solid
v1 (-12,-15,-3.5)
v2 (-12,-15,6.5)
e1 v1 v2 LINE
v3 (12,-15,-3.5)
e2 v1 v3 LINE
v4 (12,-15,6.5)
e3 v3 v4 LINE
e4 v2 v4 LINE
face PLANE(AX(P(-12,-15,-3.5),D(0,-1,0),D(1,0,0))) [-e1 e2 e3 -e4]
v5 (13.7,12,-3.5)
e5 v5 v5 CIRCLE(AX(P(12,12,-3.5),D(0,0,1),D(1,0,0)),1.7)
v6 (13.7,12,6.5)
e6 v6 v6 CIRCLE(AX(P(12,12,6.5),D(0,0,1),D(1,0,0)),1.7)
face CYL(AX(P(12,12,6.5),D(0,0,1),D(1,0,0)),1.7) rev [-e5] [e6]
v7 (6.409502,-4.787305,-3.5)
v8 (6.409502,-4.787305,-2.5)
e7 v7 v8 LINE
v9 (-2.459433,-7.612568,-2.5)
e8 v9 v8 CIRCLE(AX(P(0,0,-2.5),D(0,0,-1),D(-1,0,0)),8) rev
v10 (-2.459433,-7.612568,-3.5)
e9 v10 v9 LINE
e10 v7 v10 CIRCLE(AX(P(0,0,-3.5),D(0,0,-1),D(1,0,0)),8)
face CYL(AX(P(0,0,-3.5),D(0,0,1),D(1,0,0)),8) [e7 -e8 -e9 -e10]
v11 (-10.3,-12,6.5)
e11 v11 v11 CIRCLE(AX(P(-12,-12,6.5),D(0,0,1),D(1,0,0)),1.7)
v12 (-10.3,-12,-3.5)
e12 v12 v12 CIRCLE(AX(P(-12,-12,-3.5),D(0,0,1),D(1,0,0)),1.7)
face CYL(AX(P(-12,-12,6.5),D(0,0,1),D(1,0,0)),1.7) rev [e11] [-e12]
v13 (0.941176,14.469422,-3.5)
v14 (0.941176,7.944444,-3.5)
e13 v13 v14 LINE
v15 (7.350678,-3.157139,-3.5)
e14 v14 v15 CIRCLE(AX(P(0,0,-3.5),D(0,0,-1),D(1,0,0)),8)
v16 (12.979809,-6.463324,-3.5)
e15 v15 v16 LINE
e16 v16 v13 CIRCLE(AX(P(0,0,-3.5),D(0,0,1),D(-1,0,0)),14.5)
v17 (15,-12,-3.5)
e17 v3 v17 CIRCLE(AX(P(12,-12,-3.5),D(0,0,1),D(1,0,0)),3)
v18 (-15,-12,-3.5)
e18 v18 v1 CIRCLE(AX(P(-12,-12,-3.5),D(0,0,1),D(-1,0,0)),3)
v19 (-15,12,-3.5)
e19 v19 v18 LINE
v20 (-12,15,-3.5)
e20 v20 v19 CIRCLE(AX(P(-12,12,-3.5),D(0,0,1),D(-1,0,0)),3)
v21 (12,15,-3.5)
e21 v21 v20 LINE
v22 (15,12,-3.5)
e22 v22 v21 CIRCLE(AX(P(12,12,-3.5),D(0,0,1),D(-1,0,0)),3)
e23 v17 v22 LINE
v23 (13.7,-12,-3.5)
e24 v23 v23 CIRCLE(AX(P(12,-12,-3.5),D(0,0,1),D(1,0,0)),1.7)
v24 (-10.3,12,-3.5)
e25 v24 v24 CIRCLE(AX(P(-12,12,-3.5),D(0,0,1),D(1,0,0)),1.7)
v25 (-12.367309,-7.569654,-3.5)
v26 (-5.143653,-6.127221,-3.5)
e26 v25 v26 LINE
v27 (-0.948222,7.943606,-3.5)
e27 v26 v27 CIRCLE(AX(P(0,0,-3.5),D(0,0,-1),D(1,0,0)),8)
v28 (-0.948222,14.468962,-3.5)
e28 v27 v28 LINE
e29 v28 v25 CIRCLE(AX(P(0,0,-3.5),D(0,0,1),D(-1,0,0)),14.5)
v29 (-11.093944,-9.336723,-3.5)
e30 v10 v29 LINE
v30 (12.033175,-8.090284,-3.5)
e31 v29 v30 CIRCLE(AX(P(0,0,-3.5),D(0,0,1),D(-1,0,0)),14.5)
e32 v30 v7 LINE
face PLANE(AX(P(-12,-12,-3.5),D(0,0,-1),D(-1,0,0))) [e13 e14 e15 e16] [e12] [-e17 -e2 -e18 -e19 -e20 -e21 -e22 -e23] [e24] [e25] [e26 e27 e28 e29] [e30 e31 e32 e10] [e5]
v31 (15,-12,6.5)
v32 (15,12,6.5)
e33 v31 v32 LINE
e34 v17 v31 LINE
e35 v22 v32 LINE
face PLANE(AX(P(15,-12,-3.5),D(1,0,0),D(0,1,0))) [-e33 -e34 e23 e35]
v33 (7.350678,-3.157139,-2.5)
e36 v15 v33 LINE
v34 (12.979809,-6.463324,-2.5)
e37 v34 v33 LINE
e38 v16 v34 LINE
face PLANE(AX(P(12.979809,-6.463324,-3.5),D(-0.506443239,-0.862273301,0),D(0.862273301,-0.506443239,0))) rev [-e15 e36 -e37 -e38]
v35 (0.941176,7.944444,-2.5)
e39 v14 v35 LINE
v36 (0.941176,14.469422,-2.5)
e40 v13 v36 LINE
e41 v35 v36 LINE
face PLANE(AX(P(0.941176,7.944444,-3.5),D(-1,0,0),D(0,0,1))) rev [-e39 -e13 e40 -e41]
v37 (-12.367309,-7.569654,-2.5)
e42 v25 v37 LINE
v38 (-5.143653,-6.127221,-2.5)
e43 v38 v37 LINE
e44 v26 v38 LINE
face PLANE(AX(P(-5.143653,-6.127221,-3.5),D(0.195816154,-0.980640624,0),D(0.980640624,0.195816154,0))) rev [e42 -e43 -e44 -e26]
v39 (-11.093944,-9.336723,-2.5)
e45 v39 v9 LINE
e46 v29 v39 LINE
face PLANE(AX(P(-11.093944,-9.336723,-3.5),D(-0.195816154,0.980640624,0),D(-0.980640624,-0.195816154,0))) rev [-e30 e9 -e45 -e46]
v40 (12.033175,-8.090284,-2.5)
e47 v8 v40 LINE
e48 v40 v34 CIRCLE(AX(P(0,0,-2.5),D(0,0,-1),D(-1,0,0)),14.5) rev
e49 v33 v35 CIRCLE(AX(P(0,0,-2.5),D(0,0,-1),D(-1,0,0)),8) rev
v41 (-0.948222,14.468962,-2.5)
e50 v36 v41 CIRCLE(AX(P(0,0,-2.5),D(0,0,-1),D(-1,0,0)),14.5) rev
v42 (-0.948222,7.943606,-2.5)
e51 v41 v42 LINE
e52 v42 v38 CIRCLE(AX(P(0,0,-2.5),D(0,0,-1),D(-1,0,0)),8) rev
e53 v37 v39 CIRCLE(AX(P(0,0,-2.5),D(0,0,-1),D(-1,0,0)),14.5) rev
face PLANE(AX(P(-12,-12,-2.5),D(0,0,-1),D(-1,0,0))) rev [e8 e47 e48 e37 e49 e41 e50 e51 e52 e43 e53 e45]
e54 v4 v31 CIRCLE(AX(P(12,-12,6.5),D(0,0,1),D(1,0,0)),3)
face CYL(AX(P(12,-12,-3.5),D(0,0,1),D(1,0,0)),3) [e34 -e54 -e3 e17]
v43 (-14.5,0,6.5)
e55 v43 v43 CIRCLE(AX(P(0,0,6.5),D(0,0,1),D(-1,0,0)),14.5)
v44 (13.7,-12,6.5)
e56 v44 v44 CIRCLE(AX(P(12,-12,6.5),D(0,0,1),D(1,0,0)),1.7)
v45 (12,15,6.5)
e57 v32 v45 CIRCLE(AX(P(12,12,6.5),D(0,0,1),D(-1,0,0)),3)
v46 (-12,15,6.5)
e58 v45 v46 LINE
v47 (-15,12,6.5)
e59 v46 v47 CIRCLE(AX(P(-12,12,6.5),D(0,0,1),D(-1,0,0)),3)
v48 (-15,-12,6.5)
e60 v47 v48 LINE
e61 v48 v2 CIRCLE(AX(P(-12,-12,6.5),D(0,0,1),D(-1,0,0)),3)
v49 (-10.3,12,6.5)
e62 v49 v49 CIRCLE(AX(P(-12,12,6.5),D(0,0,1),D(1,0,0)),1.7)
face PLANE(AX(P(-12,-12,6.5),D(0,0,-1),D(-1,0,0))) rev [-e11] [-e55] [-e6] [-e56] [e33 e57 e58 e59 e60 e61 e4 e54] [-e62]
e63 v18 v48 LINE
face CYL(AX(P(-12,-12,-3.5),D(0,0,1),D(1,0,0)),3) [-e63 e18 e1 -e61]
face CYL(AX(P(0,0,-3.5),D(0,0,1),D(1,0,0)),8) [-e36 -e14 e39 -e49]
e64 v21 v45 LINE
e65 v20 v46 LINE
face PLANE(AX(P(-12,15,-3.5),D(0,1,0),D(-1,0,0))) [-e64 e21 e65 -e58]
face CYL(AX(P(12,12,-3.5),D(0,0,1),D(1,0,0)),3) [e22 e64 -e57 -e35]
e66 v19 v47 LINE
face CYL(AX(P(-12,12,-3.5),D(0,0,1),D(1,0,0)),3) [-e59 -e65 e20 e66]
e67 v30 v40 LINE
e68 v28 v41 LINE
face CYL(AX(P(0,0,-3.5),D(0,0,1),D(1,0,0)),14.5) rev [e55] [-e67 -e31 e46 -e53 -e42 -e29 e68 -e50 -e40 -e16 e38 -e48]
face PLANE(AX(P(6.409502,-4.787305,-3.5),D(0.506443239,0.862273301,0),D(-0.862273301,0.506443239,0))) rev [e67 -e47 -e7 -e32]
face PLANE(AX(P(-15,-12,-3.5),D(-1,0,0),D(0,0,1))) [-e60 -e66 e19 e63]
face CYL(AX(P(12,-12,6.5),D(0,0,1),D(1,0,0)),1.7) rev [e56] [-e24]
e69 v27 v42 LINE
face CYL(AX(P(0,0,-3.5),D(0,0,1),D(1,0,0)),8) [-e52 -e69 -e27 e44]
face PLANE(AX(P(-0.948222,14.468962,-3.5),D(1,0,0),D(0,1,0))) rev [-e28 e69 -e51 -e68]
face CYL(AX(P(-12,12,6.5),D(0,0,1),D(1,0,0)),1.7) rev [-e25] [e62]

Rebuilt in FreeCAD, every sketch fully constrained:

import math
import FreeCAD as App
import Part
import Sketcher

doc = App.newDocument("Part")
params = doc.addObject("Spreadsheet::Sheet", "Params")
for row, (alias, value) in enumerate([
    ("sketch1_radius", "3 mm"),
    ("sketch1_radius2", "8 mm"),
    ("sketch1_radius3", "14.5 mm"),
    ("sketch1_width", "24 mm"),
    ("pad1_length", "10 mm"),
    ("sketch2_radius", "8 mm"),
    ("sketch2_radius2", "14.5 mm"),
    ("pocket1_length", "9 mm"),
    ("sketch3_diameter", "3.4 mm"),
    ("hole_diameter", "3.4 mm"),
], start=1):
    params.set(f"A{row}", alias)
    params.set(f"B{row}", "=" + value)
    params.setAlias(f"B{row}", alias)

body = doc.addObject("PartDesign::Body", "Body")

# Sketch on XY plane
sketch1 = body.newObject("Sketcher::SketchObject", "Sketch")
sketch1.AttachmentSupport = (doc.getObject("XY_Plane"), [""])
sketch1.MapMode = "FlatFace"
sketch1.AttachmentOffset = App.Placement(App.Vector(0, 0, 6.5), App.Rotation())
sketch1.addGeometry(Part.LineSegment(App.Vector(-12, -15, 0), App.Vector(12, -15, 0)), False)
sketch1.addGeometry(Part.ArcOfCircle(Part.Circle(App.Vector(12, -12, 0), App.Vector(0, 0, 1), 3), math.radians(-90), math.radians(0)), False)
sketch1.addGeometry(Part.LineSegment(App.Vector(15, -12, 0), App.Vector(15, 12, 0)), False)
sketch1.addGeometry(Part.ArcOfCircle(Part.Circle(App.Vector(12, 12, 0), App.Vector(0, 0, 1), 3), math.radians(0), math.radians(90)), False)
sketch1.addGeometry(Part.LineSegment(App.Vector(12, 15, 0), App.Vector(-12, 15, 0)), False)
sketch1.addGeometry(Part.ArcOfCircle(Part.Circle(App.Vector(-12, 12, 0), App.Vector(0, 0, 1), 3), math.radians(90), math.radians(180)), False)
sketch1.addGeometry(Part.LineSegment(App.Vector(-15, 12, 0), App.Vector(-15, -12, 0)), False)
sketch1.addGeometry(Part.ArcOfCircle(Part.Circle(App.Vector(-12, -12, 0), App.Vector(0, 0, 1), 3), math.radians(180), math.radians(270)), False)
sketch1.addGeometry(Part.ArcOfCircle(Part.Circle(App.Vector(0, 0, 0), App.Vector(0, 0, 1), 8), math.radians(-108), math.radians(-37)), False)
sketch1.addGeometry(Part.LineSegment(App.Vector(6.4, -4.8, 0), App.Vector(12, -8.1, 0)), False)
sketch1.addGeometry(Part.ArcOfCircle(Part.Circle(App.Vector(0, 0, 0), App.Vector(0, 0, 1), 14.5), math.radians(-140), math.radians(-34)), False)
sketch1.addGeometry(Part.LineSegment(App.Vector(-11.1, -9.3, 0), App.Vector(-2.5, -7.6, 0)), False)
sketch1.addGeometry(Part.ArcOfCircle(Part.Circle(App.Vector(0, 0, 0), App.Vector(0, 0, 1), 8), math.radians(97), math.radians(230)), False)
sketch1.addGeometry(Part.LineSegment(App.Vector(-5.1, -6.1, 0), App.Vector(-12.4, -7.6, 0)), False)
sketch1.addGeometry(Part.ArcOfCircle(Part.Circle(App.Vector(0, 0, 0), App.Vector(0, 0, 1), 14.5), math.radians(94), math.radians(211)), False)
sketch1.addGeometry(Part.LineSegment(App.Vector(-0.9, 14.5, 0), App.Vector(-0.9, 7.9, 0)), False)
sketch1.addGeometry(Part.ArcOfCircle(Part.Circle(App.Vector(0, 0, 0), App.Vector(0, 0, 1), 14.5), math.radians(-26), math.radians(86)), False)
sketch1.addGeometry(Part.LineSegment(App.Vector(13, -6.5, 0), App.Vector(7.4, -3.2, 0)), False)
sketch1.addGeometry(Part.ArcOfCircle(Part.Circle(App.Vector(0, 0, 0), App.Vector(0, 0, 1), 8), math.radians(-23), math.radians(83)), False)
sketch1.addGeometry(Part.LineSegment(App.Vector(0.9, 7.9, 0), App.Vector(0.9, 14.5, 0)), False)
sketch1.addConstraint(Sketcher.Constraint("Tangent", 0, 2, 1, 1))
sketch1.addConstraint(Sketcher.Constraint("Tangent", 1, 2, 2, 1))
sketch1.addConstraint(Sketcher.Constraint("Tangent", 2, 2, 3, 1))
sketch1.addConstraint(Sketcher.Constraint("Tangent", 3, 2, 4, 1))
sketch1.addConstraint(Sketcher.Constraint("Tangent", 4, 2, 5, 1))
sketch1.addConstraint(Sketcher.Constraint("Tangent", 5, 2, 6, 1))
sketch1.addConstraint(Sketcher.Constraint("Tangent", 6, 2, 7, 1))
sketch1.addConstraint(Sketcher.Constraint("Tangent", 7, 2, 0, 1))
sketch1.addConstraint(Sketcher.Constraint("Coincident", 8, 2, 9, 1))
sketch1.addConstraint(Sketcher.Constraint("Coincident", 9, 2, 10, 2))
sketch1.addConstraint(Sketcher.Constraint("Coincident", 10, 1, 11, 1))
sketch1.addConstraint(Sketcher.Constraint("Coincident", 11, 2, 8, 1))
sketch1.addConstraint(Sketcher.Constraint("Coincident", 12, 2, 13, 1))
sketch1.addConstraint(Sketcher.Constraint("Coincident", 13, 2, 14, 2))
sketch1.addConstraint(Sketcher.Constraint("Coincident", 14, 1, 15, 1))
sketch1.addConstraint(Sketcher.Constraint("Coincident", 15, 2, 12, 1))
sketch1.addConstraint(Sketcher.Constraint("Coincident", 16, 1, 17, 1))
sketch1.addConstraint(Sketcher.Constraint("Coincident", 17, 2, 18, 1))
sketch1.addConstraint(Sketcher.Constraint("Coincident", 18, 2, 19, 1))
sketch1.addConstraint(Sketcher.Constraint("Coincident", 19, 2, 16, 2))
sketch1.addConstraint(Sketcher.Constraint("Horizontal", 0))
sketch1.addConstraint(Sketcher.Constraint("Vertical", 2))
sketch1.addConstraint(Sketcher.Constraint("Horizontal", 4))
sketch1.addConstraint(Sketcher.Constraint("Vertical", 6))
sketch1.addConstraint(Sketcher.Constraint("Vertical", 15))
sketch1.addConstraint(Sketcher.Constraint("Vertical", 19))
sketch1.addConstraint(Sketcher.Constraint("Coincident", 8, 3, -1, 1))
sketch1.addConstraint(Sketcher.Constraint("Coincident", 10, 3, -1, 1))
sketch1.addConstraint(Sketcher.Constraint("Coincident", 12, 3, -1, 1))
sketch1.addConstraint(Sketcher.Constraint("Coincident", 14, 3, -1, 1))
sketch1.addConstraint(Sketcher.Constraint("Coincident", 16, 3, -1, 1))
sketch1.addConstraint(Sketcher.Constraint("Coincident", 18, 3, -1, 1))
sketch1.addConstraint(Sketcher.Constraint("Equal", 1, 3))
sketch1.addConstraint(Sketcher.Constraint("Equal", 3, 5))
sketch1.addConstraint(Sketcher.Constraint("Equal", 5, 7))
sketch1.addConstraint(Sketcher.Constraint("Equal", 8, 12))
sketch1.addConstraint(Sketcher.Constraint("Equal", 10, 14))
sketch1.addConstraint(Sketcher.Constraint("Equal", 14, 16))
sketch1.addConstraint(Sketcher.Constraint("Equal", 12, 18))
sketch1.addConstraint(Sketcher.Constraint("Symmetric", 1, 3, 5, 3, -1, 1))
sketch1.addConstraint(Sketcher.Constraint("Parallel", 11, 13))
sketch1.addConstraint(Sketcher.Constraint("Parallel", 9, 17))
sketch1.addConstraint(Sketcher.Constraint("Equal", 4, 2))
sketch1.addConstraint(Sketcher.Constraint("Radius", 1, 3.0))
sketch1.addConstraint(Sketcher.Constraint("Radius", 8, 8.0))
sketch1.addConstraint(Sketcher.Constraint("Radius", 10, 14.5))
sketch1.addConstraint(Sketcher.Constraint("DistanceX", 0, 1, 0, 2, 24.0))
sketch1.addConstraint(Sketcher.Constraint("DistanceY", 19, 1, 19, 2, 6.524979))
sketch1.addConstraint(Sketcher.Constraint("DistanceX", -1, 1, 8, 2, 6.409502))
sketch1.addConstraint(Sketcher.Constraint("DistanceX", 15, 2, 18, 2, 1.889398))
sketch1.addConstraint(Sketcher.Constraint("Distance", 11, 8.80497))
sketch1.addConstraint(Sketcher.Constraint("DistanceY", 12, 2, -1, 1, 6.127221))
sketch1.addConstraint(Sketcher.Constraint("DistanceX", 13, 2, -1, 1, 12.367309))
sketch1.addConstraint(Sketcher.Constraint("DistanceX", -1, 1, 16, 1, 12.979809))
sketch1.addConstraint(Sketcher.Constraint("DistanceX", -1, 1, 17, 2, 7.350678))
sketch1.setExpression("Constraints[43]", "Params.sketch1_radius")
sketch1.setExpression("Constraints[44]", "Params.sketch1_radius2")
sketch1.setExpression("Constraints[45]", "Params.sketch1_radius3")
sketch1.setExpression("Constraints[46]", "Params.sketch1_width")
pad1 = body.newObject("PartDesign::Pad", "Pad")
pad1.Profile = sketch1
pad1.setExpression("Length", "Params.pad1_length")
pad1.Reversed = True

# Sketch on XY plane
sketch2 = body.newObject("Sketcher::SketchObject", "Sketch001")
sketch2.AttachmentSupport = (doc.getObject("XY_Plane"), [""])
sketch2.MapMode = "FlatFace"
sketch2.AttachmentOffset = App.Placement(App.Vector(0, 0, 6.5), App.Rotation())
sketch2.addGeometry(Part.LineSegment(App.Vector(-11.1, -9.3, 0), App.Vector(-2.5, -7.6, 0)), False)
sketch2.addGeometry(Part.ArcOfCircle(Part.Circle(App.Vector(0, 0, 0), App.Vector(0, 0, 1), 8), math.radians(-108), math.radians(-37)), False)
sketch2.addGeometry(Part.LineSegment(App.Vector(6.4, -4.8, 0), App.Vector(12, -8.1, 0)), False)
sketch2.addGeometry(Part.ArcOfCircle(Part.Circle(App.Vector(0, 0, 0), App.Vector(0, 0, 1), 14.5), math.radians(-33.91), math.radians(-26.47)), False)
sketch2.addGeometry(Part.LineSegment(App.Vector(13, -6.5, 0), App.Vector(7.4, -3.2, 0)), False)
sketch2.addGeometry(Part.ArcOfCircle(Part.Circle(App.Vector(0, 0, 0), App.Vector(0, 0, 1), 8), math.radians(-23), math.radians(83)), False)
sketch2.addGeometry(Part.LineSegment(App.Vector(0.9, 7.9, 0), App.Vector(0.9, 14.5, 0)), False)
sketch2.addGeometry(Part.ArcOfCircle(Part.Circle(App.Vector(0, 0, 0), App.Vector(0, 0, 1), 14.5), math.radians(86.28), math.radians(93.75)), False)
sketch2.addGeometry(Part.LineSegment(App.Vector(-0.9, 14.5, 0), App.Vector(-0.9, 7.9, 0)), False)
sketch2.addGeometry(Part.ArcOfCircle(Part.Circle(App.Vector(0, 0, 0), App.Vector(0, 0, 1), 8), math.radians(97), math.radians(230)), False)
sketch2.addGeometry(Part.LineSegment(App.Vector(-5.1, -6.1, 0), App.Vector(-12.4, -7.6, 0)), False)
sketch2.addGeometry(Part.ArcOfCircle(Part.Circle(App.Vector(0, 0, 0), App.Vector(0, 0, 1), 14.5), math.radians(-148.53), math.radians(-139.92)), False)
sketch2.addConstraint(Sketcher.Constraint("Coincident", 0, 2, 1, 1))
sketch2.addConstraint(Sketcher.Constraint("Coincident", 1, 2, 2, 1))
sketch2.addConstraint(Sketcher.Constraint("Coincident", 2, 2, 3, 1))
sketch2.addConstraint(Sketcher.Constraint("Coincident", 3, 2, 4, 1))
sketch2.addConstraint(Sketcher.Constraint("Coincident", 4, 2, 5, 1))
sketch2.addConstraint(Sketcher.Constraint("Coincident", 5, 2, 6, 1))
sketch2.addConstraint(Sketcher.Constraint("Coincident", 6, 2, 7, 1))
sketch2.addConstraint(Sketcher.Constraint("Coincident", 7, 2, 8, 1))
sketch2.addConstraint(Sketcher.Constraint("Coincident", 8, 2, 9, 1))
sketch2.addConstraint(Sketcher.Constraint("Coincident", 9, 2, 10, 1))
sketch2.addConstraint(Sketcher.Constraint("Coincident", 10, 2, 11, 1))
sketch2.addConstraint(Sketcher.Constraint("Coincident", 11, 2, 0, 1))
sketch2.addConstraint(Sketcher.Constraint("Vertical", 6))
sketch2.addConstraint(Sketcher.Constraint("Vertical", 8))
sketch2.addConstraint(Sketcher.Constraint("Coincident", 1, 3, -1, 1))
sketch2.addConstraint(Sketcher.Constraint("Coincident", 3, 3, -1, 1))
sketch2.addConstraint(Sketcher.Constraint("Coincident", 5, 3, -1, 1))
sketch2.addConstraint(Sketcher.Constraint("Coincident", 7, 3, -1, 1))
sketch2.addConstraint(Sketcher.Constraint("Coincident", 9, 3, -1, 1))
sketch2.addConstraint(Sketcher.Constraint("Coincident", 11, 3, -1, 1))
sketch2.addConstraint(Sketcher.Constraint("Equal", 1, 5))
sketch2.addConstraint(Sketcher.Constraint("Equal", 3, 7))
sketch2.addConstraint(Sketcher.Constraint("Equal", 5, 9))
sketch2.addConstraint(Sketcher.Constraint("Equal", 7, 11))
sketch2.addConstraint(Sketcher.Constraint("Parallel", 2, 4))
sketch2.addConstraint(Sketcher.Constraint("Parallel", 0, 10))
sketch2.addConstraint(Sketcher.Constraint("Radius", 1, 8.0))
sketch2.addConstraint(Sketcher.Constraint("Radius", 3, 14.5))
sketch2.addConstraint(Sketcher.Constraint("DistanceY", 6, 1, 6, 2, 6.524979))
sketch2.addConstraint(Sketcher.Constraint("DistanceX", -1, 1, 1, 2, 6.409502))
sketch2.addConstraint(Sketcher.Constraint("DistanceX", 7, 2, 6, 2, 1.889398))
sketch2.addConstraint(Sketcher.Constraint("Distance", 0, 8.80497))
sketch2.addConstraint(Sketcher.Constraint("DistanceX", -1, 1, 3, 2, 12.979809))
sketch2.addConstraint(Sketcher.Constraint("DistanceX", -1, 1, 4, 2, 7.350678))
sketch2.addConstraint(Sketcher.Constraint("DistanceY", 9, 2, -1, 1, 6.127221))
sketch2.addConstraint(Sketcher.Constraint("DistanceX", 10, 2, -1, 1, 12.367309))
sketch2.setExpression("Constraints[26]", "Params.sketch2_radius")
sketch2.setExpression("Constraints[27]", "Params.sketch2_radius2")
pocket1 = body.newObject("PartDesign::Pocket", "Pocket")
pocket1.Profile = sketch2
pocket1.setExpression("Length", "Params.pocket1_length")

# Sketch on XY plane
sketch3 = body.newObject("Sketcher::SketchObject", "Sketch002")
sketch3.AttachmentSupport = (doc.getObject("XY_Plane"), [""])
sketch3.MapMode = "FlatFace"
sketch3.AttachmentOffset = App.Placement(App.Vector(0, 0, 6.5), App.Rotation())
sketch3.addGeometry(Part.Circle(App.Vector(-12, 12, 0), App.Vector(0, 0, 1), 1.7), False)
sketch3.addGeometry(Part.Circle(App.Vector(-12, -12, 0), App.Vector(0, 0, 1), 1.7), False)
sketch3.addGeometry(Part.Circle(App.Vector(12, -12, 0), App.Vector(0, 0, 1), 1.7), False)
sketch3.addGeometry(Part.Circle(App.Vector(12, 12, 0), App.Vector(0, 0, 1), 1.7), False)
sketch3.addConstraint(Sketcher.Constraint("Equal", 0, 1))
sketch3.addConstraint(Sketcher.Constraint("Equal", 1, 2))
sketch3.addConstraint(Sketcher.Constraint("Equal", 2, 3))
sketch3.addConstraint(Sketcher.Constraint("Symmetric", 0, 3, 2, 3, -1, 1))
sketch3.addConstraint(Sketcher.Constraint("Symmetric", 1, 3, 3, 3, -1, 1))
sketch3.addConstraint(Sketcher.Constraint("Symmetric", 1, 3, 2, 3, -2))
sketch3.addConstraint(Sketcher.Constraint("Diameter", 0, 3.4))
sketch3.addConstraint(Sketcher.Constraint("DistanceX", 0, 3, -1, 1, 12.0))
sketch3.addConstraint(Sketcher.Constraint("DistanceY", -1, 1, 0, 3, 12.0))
sketch3.setExpression("Constraints[6]", "Params.sketch3_diameter")
doc.recompute()
hole = body.newObject("PartDesign::Hole", "Hole")
hole.Profile = sketch3
hole.ThreadType = "None"
hole.setExpression("Diameter", "Params.hole_diameter")
hole.DepthType = "ThroughAll"

doc.recompute()
